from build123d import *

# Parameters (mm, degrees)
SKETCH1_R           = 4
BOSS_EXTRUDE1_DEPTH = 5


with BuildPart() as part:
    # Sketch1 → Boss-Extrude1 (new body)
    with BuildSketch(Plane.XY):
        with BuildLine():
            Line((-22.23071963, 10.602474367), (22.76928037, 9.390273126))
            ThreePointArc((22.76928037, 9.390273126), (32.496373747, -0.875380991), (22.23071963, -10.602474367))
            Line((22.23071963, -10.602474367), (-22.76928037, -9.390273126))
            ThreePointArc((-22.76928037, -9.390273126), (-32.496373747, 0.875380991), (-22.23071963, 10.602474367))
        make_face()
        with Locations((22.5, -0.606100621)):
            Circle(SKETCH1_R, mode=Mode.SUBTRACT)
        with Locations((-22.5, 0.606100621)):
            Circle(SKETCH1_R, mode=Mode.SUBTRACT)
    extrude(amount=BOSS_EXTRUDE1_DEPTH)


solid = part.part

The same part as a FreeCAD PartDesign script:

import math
import FreeCAD as App
import Part
import Sketcher

V = App.Vector
Q = App.Units.Quantity

doc = App.newDocument("Part")
body = doc.addObject("PartDesign::Body", "Body")

# Sketch on XY plane
sketch1 = body.newObject("Sketcher::SketchObject", "Sketch")
sketch1.AttachmentSupport = (doc.getObject("XY_Plane"), [""])
sketch1.MapMode = "FlatFace"
sketch1.addGeometry([
    Part.LineSegment(V(22.8, 9.4, 0), V(-22.2, 10.6, 0)),  # 0
    Part.ArcOfCircle(Part.Circle(V(-22.5, 0.6, 0), V(0, 0, 1), 10), math.radians(88), math.radians(268)),  # 1
    Part.LineSegment(V(-22.8, -9.4, 0), V(22.2, -10.6, 0)),  # 2
    Part.ArcOfCircle(Part.Circle(V(22.5, -0.6, 0), V(0, 0, 1), 10), math.radians(-92), math.radians(88)),  # 3
    Part.Circle(V(22.5, -0.6, 0), V(0, 0, 1), 4),  # 4
    Part.Circle(V(-22.5, 0.6, 0), V(0, 0, 1), 4),  # 5
], False)
sketch1.addConstraint([
    Sketcher.Constraint("Tangent", 0, 2, 1, 1),
    Sketcher.Constraint("Tangent", 1, 2, 2, 1),
    Sketcher.Constraint("Tangent", 2, 2, 3, 1),
    Sketcher.Constraint("Tangent", 3, 2, 0, 1),
    Sketcher.Constraint("Coincident", 4, 3, 3, 3),
    Sketcher.Constraint("Coincident", 5, 3, 1, 3),
    Sketcher.Constraint("Equal", 1, 3),
    Sketcher.Constraint("Equal", 4, 5),
    Sketcher.Constraint("Symmetric", 1, 3, 3, 3, -1, 1),
    Sketcher.Constraint("Diameter", 4, Q("8 mm")),
    Sketcher.Constraint("Radius", 1, Q("10 mm")),
    Sketcher.Constraint("DistanceX", 1, 3, 3, 3, Q("45 mm")),
    Sketcher.Constraint("DistanceY", -1, 1, 1, 3, Q("0.606101 mm")),
])
pad1 = body.newObject("PartDesign::Pad", "Pad")
pad1.Profile = sketch1
pad1.Length = 5

doc.recompute()
